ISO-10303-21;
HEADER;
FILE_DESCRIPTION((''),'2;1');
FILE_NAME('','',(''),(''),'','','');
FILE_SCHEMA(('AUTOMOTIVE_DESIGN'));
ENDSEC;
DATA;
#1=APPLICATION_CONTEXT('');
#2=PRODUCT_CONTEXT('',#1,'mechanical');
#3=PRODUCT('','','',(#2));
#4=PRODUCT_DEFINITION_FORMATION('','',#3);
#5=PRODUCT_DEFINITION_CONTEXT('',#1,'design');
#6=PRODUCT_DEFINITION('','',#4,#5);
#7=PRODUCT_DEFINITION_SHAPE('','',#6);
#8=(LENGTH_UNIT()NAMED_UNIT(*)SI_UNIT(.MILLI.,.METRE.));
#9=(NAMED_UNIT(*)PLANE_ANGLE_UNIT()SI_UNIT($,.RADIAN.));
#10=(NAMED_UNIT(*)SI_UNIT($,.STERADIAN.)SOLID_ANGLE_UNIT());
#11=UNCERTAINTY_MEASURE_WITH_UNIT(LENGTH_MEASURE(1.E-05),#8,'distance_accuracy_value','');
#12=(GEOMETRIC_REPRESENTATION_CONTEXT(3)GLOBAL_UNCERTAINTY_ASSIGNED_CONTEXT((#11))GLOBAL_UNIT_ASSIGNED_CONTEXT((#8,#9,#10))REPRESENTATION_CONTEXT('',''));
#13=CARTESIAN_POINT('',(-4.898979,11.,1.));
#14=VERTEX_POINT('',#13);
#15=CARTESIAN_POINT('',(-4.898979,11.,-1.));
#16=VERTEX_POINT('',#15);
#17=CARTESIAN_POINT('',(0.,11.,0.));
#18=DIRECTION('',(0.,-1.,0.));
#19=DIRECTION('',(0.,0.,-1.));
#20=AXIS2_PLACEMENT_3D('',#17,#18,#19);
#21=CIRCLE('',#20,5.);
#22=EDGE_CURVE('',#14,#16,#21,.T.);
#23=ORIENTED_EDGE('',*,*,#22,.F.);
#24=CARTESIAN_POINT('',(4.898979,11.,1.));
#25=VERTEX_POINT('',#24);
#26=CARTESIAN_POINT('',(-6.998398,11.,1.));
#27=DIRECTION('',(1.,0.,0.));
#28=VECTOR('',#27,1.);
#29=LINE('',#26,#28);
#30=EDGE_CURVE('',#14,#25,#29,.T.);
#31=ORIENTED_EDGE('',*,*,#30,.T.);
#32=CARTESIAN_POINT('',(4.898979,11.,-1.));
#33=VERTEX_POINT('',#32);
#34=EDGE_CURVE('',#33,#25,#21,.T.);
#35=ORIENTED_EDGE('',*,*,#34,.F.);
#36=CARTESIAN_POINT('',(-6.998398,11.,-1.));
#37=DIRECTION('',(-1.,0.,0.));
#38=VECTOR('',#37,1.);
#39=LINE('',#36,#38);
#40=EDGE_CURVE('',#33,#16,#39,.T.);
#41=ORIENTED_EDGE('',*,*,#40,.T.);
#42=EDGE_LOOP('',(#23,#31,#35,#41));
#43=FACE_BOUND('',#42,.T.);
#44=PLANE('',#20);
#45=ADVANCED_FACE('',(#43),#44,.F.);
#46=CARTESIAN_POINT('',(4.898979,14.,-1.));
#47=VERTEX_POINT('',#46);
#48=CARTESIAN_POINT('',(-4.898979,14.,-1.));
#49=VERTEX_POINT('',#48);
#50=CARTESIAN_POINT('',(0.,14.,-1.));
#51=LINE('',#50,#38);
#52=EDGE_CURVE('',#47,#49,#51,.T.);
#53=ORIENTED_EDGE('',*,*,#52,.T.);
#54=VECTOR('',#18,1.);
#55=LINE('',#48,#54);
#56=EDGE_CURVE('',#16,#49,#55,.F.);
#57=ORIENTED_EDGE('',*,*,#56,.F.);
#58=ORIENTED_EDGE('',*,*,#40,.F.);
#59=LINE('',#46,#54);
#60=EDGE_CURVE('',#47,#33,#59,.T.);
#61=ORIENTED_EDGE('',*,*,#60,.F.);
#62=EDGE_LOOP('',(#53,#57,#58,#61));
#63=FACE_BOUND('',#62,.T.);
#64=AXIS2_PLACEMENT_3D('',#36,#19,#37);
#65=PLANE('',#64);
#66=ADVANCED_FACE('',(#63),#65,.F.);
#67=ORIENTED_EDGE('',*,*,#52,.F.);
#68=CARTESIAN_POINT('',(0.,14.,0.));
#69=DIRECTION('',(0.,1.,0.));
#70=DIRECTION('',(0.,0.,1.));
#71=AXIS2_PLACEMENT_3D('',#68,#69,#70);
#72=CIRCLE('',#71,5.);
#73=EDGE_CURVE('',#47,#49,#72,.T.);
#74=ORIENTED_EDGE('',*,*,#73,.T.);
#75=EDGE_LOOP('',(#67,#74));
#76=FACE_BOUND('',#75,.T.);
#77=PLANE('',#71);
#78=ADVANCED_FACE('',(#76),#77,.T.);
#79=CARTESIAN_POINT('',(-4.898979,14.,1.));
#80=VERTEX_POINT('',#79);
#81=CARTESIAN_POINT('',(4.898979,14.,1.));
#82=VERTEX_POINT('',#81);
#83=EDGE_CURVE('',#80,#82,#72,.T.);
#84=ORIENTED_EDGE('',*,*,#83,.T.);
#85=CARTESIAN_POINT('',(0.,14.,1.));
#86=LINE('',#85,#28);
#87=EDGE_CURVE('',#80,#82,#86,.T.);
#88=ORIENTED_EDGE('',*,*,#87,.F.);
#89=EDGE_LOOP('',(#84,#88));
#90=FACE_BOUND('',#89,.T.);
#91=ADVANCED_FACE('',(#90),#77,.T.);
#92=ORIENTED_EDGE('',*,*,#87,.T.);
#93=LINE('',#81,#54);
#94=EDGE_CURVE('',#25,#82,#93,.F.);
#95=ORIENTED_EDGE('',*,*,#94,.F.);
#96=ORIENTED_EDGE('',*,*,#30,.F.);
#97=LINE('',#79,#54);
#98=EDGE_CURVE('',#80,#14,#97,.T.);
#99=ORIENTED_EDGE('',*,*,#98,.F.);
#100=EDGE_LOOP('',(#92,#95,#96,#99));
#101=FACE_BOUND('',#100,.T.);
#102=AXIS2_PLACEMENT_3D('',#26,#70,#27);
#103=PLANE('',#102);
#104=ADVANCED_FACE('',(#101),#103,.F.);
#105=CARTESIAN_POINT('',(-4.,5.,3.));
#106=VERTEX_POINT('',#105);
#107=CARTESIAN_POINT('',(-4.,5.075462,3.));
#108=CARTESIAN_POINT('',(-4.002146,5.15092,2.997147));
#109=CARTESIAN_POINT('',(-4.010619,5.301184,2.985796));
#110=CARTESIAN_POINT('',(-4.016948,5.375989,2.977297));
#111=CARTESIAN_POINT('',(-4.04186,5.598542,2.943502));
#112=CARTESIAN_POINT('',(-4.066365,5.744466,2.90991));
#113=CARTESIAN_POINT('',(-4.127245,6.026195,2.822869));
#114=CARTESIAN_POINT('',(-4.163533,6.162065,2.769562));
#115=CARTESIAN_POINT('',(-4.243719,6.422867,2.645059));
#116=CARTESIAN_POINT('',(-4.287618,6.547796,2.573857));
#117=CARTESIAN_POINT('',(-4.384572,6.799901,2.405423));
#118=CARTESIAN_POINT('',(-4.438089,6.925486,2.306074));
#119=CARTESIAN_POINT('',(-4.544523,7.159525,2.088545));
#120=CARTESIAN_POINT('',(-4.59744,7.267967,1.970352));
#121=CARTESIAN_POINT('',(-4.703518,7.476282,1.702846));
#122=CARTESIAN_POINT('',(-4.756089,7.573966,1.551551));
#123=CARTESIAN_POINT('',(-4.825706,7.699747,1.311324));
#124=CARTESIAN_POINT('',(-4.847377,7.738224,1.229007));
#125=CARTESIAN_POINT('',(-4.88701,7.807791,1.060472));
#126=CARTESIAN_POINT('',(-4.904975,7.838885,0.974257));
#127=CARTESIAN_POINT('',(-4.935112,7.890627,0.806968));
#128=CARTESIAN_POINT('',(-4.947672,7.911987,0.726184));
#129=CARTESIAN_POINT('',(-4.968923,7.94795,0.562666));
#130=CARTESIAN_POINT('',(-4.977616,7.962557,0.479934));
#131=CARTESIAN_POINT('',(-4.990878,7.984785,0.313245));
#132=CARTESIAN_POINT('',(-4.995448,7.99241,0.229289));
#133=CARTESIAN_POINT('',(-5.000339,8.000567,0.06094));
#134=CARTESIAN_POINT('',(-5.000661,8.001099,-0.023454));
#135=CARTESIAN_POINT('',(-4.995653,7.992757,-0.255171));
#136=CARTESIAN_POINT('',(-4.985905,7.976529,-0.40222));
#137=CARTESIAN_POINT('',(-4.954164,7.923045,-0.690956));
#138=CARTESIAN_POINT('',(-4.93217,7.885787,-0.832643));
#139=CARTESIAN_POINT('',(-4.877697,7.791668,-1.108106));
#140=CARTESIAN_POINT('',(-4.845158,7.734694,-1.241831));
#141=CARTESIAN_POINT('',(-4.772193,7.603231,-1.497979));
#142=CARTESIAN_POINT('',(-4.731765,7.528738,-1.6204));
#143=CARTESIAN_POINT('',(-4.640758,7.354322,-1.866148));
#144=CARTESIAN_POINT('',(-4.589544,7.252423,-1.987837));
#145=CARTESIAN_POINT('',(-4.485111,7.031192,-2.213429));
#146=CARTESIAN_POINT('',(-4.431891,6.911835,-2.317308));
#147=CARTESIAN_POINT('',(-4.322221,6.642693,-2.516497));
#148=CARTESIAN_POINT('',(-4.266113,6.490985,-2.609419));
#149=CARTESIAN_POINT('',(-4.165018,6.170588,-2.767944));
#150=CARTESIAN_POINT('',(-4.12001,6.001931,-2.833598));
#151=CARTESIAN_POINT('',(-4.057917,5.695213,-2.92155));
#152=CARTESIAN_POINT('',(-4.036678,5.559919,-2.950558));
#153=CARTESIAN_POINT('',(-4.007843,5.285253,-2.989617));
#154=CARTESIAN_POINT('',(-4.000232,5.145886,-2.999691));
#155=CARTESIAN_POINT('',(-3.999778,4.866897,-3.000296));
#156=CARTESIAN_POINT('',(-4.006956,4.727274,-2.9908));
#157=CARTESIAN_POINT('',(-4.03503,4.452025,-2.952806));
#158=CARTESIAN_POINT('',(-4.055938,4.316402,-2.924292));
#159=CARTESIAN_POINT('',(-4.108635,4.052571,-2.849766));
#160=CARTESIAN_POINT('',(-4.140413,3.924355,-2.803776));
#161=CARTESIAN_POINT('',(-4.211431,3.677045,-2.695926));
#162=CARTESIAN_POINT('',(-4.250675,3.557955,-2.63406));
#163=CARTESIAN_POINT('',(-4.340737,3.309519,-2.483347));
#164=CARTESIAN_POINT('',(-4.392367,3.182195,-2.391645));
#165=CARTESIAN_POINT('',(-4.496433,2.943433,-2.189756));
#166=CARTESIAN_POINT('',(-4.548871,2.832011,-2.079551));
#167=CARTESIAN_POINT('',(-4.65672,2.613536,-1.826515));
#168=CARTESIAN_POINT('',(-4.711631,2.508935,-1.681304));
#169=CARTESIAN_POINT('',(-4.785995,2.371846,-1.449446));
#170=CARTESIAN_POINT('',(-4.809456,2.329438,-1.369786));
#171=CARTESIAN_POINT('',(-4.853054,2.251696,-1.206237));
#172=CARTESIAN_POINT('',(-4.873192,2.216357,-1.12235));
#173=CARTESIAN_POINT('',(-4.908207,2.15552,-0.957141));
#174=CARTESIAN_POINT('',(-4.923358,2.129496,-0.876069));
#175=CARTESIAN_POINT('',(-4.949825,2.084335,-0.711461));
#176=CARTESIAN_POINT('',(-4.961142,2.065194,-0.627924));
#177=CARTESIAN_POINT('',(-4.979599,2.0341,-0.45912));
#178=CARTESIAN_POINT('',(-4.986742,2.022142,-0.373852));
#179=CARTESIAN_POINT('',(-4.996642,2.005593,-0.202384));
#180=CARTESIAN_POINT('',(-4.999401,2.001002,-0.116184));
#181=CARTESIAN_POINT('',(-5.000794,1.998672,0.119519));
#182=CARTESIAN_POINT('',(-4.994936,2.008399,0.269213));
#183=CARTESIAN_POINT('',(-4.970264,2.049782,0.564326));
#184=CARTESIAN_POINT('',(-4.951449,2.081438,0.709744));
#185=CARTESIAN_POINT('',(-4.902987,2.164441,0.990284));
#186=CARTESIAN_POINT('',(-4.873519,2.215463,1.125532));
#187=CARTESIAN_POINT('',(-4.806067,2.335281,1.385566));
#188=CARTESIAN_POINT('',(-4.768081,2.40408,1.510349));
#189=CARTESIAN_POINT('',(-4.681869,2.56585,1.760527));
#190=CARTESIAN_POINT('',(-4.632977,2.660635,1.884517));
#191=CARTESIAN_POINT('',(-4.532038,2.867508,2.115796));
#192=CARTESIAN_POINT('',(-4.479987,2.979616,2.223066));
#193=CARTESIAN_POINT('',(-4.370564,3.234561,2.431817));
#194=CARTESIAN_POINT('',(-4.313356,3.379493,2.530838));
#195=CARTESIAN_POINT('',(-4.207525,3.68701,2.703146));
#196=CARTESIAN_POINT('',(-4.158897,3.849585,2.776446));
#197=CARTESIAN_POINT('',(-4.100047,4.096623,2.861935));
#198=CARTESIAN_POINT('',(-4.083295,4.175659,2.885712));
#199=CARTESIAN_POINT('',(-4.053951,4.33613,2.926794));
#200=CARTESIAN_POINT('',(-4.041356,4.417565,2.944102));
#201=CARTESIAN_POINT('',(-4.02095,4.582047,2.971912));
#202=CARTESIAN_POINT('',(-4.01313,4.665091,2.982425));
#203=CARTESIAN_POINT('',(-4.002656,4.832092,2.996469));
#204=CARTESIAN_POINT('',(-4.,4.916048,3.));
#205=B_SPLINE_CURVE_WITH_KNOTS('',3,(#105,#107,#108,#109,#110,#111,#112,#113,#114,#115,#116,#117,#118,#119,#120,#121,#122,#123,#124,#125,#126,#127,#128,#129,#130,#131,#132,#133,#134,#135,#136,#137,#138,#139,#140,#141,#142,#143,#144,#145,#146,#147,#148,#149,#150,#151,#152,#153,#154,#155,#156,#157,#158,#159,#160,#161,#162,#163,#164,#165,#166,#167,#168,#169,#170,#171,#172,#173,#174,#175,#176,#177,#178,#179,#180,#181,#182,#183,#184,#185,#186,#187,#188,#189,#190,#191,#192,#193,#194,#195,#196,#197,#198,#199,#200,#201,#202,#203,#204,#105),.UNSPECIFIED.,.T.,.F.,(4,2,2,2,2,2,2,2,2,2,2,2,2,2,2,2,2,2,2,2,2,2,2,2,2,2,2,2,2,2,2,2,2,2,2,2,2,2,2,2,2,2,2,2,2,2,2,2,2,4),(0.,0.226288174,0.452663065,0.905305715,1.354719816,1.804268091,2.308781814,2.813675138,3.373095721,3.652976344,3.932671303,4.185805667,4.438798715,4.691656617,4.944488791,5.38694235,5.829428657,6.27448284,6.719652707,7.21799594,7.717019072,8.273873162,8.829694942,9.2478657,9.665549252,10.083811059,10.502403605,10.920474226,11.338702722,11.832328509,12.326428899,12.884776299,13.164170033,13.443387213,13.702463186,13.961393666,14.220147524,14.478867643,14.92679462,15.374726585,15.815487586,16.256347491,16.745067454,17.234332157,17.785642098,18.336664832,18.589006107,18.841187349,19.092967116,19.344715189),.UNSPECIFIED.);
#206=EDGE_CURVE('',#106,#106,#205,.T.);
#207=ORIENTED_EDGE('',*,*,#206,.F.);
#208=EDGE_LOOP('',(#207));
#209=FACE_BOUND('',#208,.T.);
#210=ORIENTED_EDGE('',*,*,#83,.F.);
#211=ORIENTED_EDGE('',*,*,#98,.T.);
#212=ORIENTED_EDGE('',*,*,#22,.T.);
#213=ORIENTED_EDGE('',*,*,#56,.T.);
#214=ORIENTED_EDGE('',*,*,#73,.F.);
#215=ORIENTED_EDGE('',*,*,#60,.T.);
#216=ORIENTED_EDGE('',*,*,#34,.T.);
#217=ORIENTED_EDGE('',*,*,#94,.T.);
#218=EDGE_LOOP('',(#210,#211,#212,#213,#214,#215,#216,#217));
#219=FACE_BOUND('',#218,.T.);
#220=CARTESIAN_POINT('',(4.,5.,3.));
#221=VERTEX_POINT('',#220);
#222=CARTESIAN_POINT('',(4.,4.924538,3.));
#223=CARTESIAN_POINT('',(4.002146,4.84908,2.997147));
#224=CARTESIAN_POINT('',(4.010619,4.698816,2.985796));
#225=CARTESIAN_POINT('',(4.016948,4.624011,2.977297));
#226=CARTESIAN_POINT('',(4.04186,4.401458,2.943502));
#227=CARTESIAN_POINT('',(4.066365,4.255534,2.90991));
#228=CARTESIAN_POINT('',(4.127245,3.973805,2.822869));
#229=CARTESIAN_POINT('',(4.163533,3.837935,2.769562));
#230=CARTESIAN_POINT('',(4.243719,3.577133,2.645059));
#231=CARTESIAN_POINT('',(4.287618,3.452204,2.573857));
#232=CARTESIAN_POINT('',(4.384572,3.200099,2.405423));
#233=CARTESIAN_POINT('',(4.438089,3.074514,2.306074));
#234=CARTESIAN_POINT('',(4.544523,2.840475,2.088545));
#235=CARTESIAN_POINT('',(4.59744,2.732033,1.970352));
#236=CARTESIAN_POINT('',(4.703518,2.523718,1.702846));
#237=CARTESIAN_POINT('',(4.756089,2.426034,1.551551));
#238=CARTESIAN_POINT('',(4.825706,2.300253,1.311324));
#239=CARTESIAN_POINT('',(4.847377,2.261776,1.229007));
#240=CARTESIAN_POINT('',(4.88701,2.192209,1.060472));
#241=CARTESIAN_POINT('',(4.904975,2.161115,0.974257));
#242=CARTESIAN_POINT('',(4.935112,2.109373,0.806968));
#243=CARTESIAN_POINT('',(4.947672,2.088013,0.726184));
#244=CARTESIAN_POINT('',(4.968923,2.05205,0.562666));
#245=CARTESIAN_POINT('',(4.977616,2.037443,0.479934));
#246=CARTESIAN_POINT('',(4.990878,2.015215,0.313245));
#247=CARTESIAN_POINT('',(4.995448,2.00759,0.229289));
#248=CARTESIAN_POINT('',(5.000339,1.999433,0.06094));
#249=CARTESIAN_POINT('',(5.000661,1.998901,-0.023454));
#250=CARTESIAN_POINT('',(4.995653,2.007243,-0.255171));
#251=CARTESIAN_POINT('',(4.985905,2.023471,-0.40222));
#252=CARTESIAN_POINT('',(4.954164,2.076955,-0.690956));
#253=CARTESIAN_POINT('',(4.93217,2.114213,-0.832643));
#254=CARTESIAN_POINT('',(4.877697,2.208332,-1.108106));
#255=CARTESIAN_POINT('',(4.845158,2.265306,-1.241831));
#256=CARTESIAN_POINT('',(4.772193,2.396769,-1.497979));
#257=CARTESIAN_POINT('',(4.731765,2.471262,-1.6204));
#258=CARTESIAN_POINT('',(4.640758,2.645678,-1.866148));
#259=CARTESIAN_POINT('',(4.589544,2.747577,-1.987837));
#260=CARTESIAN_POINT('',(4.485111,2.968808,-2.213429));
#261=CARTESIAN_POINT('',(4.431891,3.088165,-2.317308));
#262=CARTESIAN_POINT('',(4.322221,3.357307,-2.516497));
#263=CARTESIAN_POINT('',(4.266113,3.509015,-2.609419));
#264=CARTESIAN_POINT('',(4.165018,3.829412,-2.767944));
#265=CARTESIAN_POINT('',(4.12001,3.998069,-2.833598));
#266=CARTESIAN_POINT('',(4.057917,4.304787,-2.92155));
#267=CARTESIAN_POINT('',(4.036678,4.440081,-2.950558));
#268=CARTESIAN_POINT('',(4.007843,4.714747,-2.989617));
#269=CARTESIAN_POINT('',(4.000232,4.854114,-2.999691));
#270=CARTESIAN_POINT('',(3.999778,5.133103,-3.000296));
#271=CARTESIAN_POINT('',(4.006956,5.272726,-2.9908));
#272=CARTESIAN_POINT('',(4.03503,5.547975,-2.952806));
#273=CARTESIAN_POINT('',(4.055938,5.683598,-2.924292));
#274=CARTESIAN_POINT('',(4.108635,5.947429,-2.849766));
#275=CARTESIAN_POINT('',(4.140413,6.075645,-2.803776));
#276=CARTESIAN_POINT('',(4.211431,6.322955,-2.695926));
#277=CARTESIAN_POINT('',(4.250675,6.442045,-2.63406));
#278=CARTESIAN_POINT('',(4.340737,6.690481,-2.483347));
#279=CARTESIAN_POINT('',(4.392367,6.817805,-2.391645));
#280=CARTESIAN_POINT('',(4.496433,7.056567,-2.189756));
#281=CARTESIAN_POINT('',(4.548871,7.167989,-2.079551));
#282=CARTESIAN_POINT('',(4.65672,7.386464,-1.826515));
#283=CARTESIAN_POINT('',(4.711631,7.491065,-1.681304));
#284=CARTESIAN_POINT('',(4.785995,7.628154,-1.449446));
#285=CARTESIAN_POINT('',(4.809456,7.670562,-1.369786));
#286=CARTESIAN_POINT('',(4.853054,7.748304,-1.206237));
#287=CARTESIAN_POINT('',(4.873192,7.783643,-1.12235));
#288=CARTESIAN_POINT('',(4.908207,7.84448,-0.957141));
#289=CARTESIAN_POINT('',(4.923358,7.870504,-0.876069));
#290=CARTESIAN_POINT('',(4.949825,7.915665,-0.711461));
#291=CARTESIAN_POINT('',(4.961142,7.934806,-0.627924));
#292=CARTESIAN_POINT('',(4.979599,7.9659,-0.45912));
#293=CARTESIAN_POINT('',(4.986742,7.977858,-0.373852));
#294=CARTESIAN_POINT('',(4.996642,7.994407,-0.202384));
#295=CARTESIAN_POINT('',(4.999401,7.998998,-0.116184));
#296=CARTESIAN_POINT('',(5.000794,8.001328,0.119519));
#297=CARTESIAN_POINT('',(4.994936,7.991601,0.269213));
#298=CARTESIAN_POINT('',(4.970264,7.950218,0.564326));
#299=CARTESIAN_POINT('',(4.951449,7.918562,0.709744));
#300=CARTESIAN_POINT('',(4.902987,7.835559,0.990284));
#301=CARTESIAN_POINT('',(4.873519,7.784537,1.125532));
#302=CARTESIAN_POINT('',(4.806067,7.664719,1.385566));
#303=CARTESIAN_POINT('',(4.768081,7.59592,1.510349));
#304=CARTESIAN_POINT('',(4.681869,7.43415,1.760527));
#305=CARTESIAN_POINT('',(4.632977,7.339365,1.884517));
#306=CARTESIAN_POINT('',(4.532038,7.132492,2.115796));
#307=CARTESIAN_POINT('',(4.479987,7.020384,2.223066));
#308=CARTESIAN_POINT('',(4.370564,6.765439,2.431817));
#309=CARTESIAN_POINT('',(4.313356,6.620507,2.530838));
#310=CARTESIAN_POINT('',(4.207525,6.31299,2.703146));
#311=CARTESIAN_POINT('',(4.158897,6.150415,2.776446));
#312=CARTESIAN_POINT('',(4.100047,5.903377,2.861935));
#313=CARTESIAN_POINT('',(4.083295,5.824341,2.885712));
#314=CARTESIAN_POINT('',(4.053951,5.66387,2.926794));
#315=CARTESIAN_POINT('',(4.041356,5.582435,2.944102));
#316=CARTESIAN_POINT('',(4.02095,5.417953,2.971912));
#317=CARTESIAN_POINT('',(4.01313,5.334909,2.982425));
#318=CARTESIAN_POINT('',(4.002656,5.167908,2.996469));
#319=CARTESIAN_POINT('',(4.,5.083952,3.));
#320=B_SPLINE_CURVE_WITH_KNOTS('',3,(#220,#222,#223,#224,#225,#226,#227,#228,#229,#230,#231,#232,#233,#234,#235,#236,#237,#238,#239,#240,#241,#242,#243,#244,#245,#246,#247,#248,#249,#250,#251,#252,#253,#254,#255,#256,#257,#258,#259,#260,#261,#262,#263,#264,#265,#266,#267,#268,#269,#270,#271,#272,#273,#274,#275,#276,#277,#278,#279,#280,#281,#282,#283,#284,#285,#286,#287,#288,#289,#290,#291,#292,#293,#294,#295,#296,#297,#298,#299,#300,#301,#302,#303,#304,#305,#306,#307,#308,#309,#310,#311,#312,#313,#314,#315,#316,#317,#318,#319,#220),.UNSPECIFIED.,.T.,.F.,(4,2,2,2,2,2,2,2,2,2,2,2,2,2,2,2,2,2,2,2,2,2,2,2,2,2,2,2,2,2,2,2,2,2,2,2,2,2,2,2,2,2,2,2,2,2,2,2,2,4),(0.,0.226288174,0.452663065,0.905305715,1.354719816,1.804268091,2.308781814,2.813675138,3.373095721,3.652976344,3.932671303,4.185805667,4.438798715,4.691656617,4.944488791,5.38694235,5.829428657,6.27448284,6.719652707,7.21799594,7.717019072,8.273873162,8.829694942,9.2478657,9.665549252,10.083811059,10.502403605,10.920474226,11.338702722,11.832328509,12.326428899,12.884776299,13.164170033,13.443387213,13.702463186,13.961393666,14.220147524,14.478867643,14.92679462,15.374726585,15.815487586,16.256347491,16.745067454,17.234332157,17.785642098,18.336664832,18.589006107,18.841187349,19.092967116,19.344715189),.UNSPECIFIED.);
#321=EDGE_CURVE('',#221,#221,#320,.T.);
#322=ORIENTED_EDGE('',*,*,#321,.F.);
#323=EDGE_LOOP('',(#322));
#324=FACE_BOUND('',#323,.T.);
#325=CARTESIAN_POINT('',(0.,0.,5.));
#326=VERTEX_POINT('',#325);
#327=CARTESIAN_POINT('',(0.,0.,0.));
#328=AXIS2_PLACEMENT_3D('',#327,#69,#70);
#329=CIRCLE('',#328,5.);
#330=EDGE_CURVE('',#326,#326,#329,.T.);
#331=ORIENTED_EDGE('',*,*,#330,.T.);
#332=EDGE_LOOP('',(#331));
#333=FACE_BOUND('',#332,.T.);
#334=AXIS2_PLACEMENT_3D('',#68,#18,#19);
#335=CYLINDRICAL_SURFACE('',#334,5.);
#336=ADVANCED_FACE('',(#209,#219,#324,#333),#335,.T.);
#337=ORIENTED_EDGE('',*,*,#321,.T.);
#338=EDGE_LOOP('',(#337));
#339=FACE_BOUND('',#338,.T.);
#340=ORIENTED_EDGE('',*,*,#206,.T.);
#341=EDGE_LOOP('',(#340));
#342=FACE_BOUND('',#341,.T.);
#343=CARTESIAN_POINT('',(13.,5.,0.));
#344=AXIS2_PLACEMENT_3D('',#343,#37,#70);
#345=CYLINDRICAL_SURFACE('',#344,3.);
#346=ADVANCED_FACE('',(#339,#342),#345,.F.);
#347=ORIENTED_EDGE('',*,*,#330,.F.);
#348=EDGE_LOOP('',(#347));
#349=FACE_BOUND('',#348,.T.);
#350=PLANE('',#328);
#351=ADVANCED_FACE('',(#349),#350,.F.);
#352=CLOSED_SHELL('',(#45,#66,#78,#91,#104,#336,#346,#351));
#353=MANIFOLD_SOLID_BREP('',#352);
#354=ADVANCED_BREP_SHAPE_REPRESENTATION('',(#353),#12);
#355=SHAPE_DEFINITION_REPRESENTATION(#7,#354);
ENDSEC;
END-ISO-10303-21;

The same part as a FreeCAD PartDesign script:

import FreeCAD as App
import Part
import Sketcher
Q = App.Units.Quantity


def add_polygon(sketch, points):
    """Adds a closed chain of lines whose ends are joined by coincident constraints."""
    first, n = sketch.GeometryCount, len(points)
    for a, b in zip(points, points[1:] + points[:1]):
        sketch.addGeometry(Part.LineSegment(App.Vector(*a, 0), App.Vector(*b, 0)), False)
    for i in range(n):
        sketch.addConstraint(Sketcher.Constraint("Coincident", first + i, 2, first + (i + 1) % n, 1))

doc = App.newDocument("Part")
body = doc.addObject("PartDesign::Body", "Body")

sketch1 = body.newObject("Sketcher::SketchObject", "Sketch")
sketch1.AttachmentSupport = (doc.getObject("XZ_Plane"), [""])
sketch1.MapMode = "FlatFace"
sketch1.addGeometry(Part.Circle(App.Vector(0, 0, 0), App.Vector(0, 0, 1), 5), False)
sketch1.addConstraint(Sketcher.Constraint("Coincident", 0, 3, -1, 1))
sketch1.addConstraint(Sketcher.Constraint("Diameter", 0, Q("10 mm")))
pad1 = body.newObject("PartDesign::Pad", "Pad")
pad1.Profile = sketch1
pad1.Length = 14
pad1.Reversed = True

sketch2 = body.newObject("Sketcher::SketchObject", "Sketch001")
sketch2.AttachmentSupport = (doc.getObject("XZ_Plane"), [""])
sketch2.MapMode = "FlatFace"
sketch2.AttachmentOffset = App.Placement(App.Vector(0, 0, -14), App.Rotation())
add_polygon(sketch2, [(-7, -1), (-7, 1), (7, 1), (7, -1)])
sketch2.addConstraint(Sketcher.Constraint("Vertical", 0))
sketch2.addConstraint(Sketcher.Constraint("Horizontal", 1))
sketch2.addConstraint(Sketcher.Constraint("Vertical", 2))
sketch2.addConstraint(Sketcher.Constraint("Horizontal", 3))
sketch2.addConstraint(Sketcher.Constraint("Symmetric", 0, 2, 2, 2, -1, 1))
sketch2.addConstraint(Sketcher.Constraint("DistanceY", 0, 1, 0, 2, Q("2 mm")))
sketch2.addConstraint(Sketcher.Constraint("DistanceX", 1, 1, 1, 2, Q("13.996795 mm")))
pocket1 = body.newObject("PartDesign::Pocket", "Pocket")
pocket1.Profile = sketch2
pocket1.Length = 3
pocket1.Reversed = True

sketch3 = body.newObject("Sketcher::SketchObject", "Sketch002")
sketch3.AttachmentSupport = (doc.getObject("YZ_Plane"), [""])
sketch3.MapMode = "FlatFace"
sketch3.addGeometry(Part.Circle(App.Vector(5, 0, 0), App.Vector(0, 0, 1), 3), False)
sketch3.addConstraint(Sketcher.Constraint("PointOnObject", 0, 3, -1))
sketch3.addConstraint(Sketcher.Constraint("Diameter", 0, Q("6 mm")))
sketch3.addConstraint(Sketcher.Constraint("DistanceX", -1, 1, 0, 3, Q("5 mm")))
pocket2 = body.newObject("PartDesign::Pocket", "Pocket001")
pocket2.Profile = sketch3
pocket2.Type = "ThroughAll"
pocket2.Midplane = True

doc.recompute()
